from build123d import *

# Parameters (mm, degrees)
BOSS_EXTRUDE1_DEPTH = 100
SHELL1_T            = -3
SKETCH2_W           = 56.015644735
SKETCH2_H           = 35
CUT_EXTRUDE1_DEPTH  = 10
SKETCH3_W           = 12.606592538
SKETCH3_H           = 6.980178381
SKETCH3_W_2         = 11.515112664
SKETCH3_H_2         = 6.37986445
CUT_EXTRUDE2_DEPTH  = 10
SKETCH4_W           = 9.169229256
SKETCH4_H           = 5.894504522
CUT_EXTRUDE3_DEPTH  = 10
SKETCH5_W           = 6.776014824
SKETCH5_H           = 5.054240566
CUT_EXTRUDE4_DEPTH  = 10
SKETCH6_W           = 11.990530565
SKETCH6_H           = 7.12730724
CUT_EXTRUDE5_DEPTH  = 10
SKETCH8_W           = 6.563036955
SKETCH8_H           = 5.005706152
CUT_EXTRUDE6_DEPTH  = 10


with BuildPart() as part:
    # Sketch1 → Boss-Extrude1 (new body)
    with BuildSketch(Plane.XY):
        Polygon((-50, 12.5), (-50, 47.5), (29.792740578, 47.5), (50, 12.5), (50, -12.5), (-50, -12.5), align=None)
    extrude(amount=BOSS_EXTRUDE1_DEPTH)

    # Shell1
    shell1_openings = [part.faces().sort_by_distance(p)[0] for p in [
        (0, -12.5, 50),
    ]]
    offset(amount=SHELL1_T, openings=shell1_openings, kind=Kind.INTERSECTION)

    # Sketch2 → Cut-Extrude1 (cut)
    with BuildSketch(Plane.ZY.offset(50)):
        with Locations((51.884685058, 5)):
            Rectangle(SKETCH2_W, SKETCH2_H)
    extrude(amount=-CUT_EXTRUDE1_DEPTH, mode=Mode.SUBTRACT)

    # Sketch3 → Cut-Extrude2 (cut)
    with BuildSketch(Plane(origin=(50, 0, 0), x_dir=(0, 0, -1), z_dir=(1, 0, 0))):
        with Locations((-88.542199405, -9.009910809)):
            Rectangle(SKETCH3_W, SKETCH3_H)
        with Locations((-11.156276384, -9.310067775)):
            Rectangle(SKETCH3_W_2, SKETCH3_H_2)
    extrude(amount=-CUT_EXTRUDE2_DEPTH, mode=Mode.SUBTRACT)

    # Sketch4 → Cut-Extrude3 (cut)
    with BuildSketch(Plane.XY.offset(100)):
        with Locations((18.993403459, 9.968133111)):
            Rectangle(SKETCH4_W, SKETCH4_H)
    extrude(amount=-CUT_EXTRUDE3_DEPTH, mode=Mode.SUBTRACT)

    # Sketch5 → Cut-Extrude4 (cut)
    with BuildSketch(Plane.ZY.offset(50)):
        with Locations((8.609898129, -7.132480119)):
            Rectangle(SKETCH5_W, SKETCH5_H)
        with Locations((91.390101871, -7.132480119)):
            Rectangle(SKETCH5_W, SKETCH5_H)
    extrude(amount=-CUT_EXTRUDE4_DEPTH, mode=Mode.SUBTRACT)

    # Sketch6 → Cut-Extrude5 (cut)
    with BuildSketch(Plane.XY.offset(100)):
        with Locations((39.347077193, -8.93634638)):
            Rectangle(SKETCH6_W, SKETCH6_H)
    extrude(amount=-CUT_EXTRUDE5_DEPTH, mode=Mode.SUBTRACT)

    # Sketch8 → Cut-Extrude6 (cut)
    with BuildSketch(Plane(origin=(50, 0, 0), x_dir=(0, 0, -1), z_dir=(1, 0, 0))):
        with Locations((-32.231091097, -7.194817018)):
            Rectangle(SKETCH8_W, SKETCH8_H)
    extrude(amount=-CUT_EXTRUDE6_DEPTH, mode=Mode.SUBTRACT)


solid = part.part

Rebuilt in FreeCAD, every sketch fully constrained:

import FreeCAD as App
import Part
import Sketcher
from FreeCAD import Vector
Q = App.Units.Quantity


def faces_at(feature, points):
    """Names of the faces that lie closest to the given points."""
    faces = feature.Shape.Faces
    near = lambda p: min(range(len(faces)), key=lambda i: faces[i].distToShape(Part.Vertex(*p))[0])
    return sorted({f"Face{near(p) + 1}" for p in points})

doc = App.newDocument("Part")
params = doc.addObject("Spreadsheet::Sheet", "Params")
for row, (alias, value) in enumerate([
    ("sketch1_width", "100 mm"),
    ("sketch1_height", "60 mm"),
    ("sketch1_height2", "25 mm"),
    ("pad1_length", "100 mm"),
    ("thickness_wall", "3 mm"),
    ("sketch2_width", "35 mm"),
    ("pocket1_length", "10 mm"),
    ("pocket2_length", "10 mm"),
    ("pocket3_length", "10 mm"),
    ("pocket4_length", "10 mm"),
    ("pocket5_length", "10 mm"),
    ("pocket6_length", "10 mm"),
], start=1):
    params.set(f"A{row}", alias)
    params.set(f"B{row}", "=" + value)
    params.setAlias(f"B{row}", alias)

body = doc.addObject("PartDesign::Body", "Body")

# Sketch on XY plane
sketch1 = body.newObject("Sketcher::SketchObject", "Sketch")
sketch1.AttachmentSupport = (doc.getObject("XY_Plane"), [""])
sketch1.MapMode = "FlatFace"
sketch1.addGeometry([
    Part.LineSegment(Vector(-50, 47.5, 0), Vector(-50, -12.5, 0)),  # 0
    Part.LineSegment(Vector(-50, -12.5, 0), Vector(50, -12.5, 0)),  # 1
    Part.LineSegment(Vector(50, -12.5, 0), Vector(50, 12.5, 0)),  # 2
    Part.LineSegment(Vector(50, 12.5, 0), Vector(29.792741, 47.5, 0)),  # 3
    Part.LineSegment(Vector(29.792741, 47.5, 0), Vector(-50, 47.5, 0)),  # 4
], False)
sketch1.addConstraint([
    Sketcher.Constraint("Coincident", 0, 2, 1, 1),
    Sketcher.Constraint("Coincident", 1, 2, 2, 1),
    Sketcher.Constraint("Coincident", 2, 2, 3, 1),
    Sketcher.Constraint("Coincident", 3, 2, 4, 1),
    Sketcher.Constraint("Coincident", 4, 2, 0, 1),
    Sketcher.Constraint("Vertical", 0),
    Sketcher.Constraint("Horizontal", 1),
    Sketcher.Constraint("Vertical", 2),
    Sketcher.Constraint("Horizontal", 4),
    Sketcher.Constraint("Symmetric", 0, 2, 2, 2, -1, 1),
    Sketcher.Constraint("DistanceX", 1, 1, 1, 2, 100.0),
    Sketcher.Constraint("DistanceY", 0, 2, 0, 1, 60.0),
    Sketcher.Constraint("DistanceY", 2, 1, 2, 2, 25.0),
    Sketcher.Constraint("Angle", 3, Q("120 deg")),
])
sketch1.setExpression("Constraints[10]", "Params.sketch1_width")
sketch1.setExpression("Constraints[11]", "Params.sketch1_height")
sketch1.setExpression("Constraints[12]", "Params.sketch1_height2")
pad1 = body.newObject("PartDesign::Pad", "Pad")
pad1.Profile = sketch1
pad1.setExpression("Length", "Params.pad1_length")
doc.recompute()

thickness = body.newObject("PartDesign::Thickness", "Thickness")
thickness.Base = (pad1, faces_at(pad1, [(0, -12.5, 50)]))
thickness.setExpression("Value", "Params.thickness_wall")
thickness.Reversed = True
thickness.Join = "Intersection"

# Sketch on YZ plane
sketch2 = body.newObject("Sketcher::SketchObject", "Sketch001")
sketch2.AttachmentSupport = (doc.getObject("YZ_Plane"), [""])
sketch2.MapMode = "FlatFace"
sketch2.AttachmentOffset = App.Placement(Vector(0, 0, -50), App.Rotation())
sketch2.addGeometry([
    Part.LineSegment(Vector(22.5, 23.876863, 0), Vector(-12.5, 23.876863, 0)),
    Part.LineSegment(Vector(-12.5, 23.876863, 0), Vector(-12.5, 79.892507, 0)),
    Part.LineSegment(Vector(-12.5, 79.892507, 0), Vector(22.5, 79.892507, 0)),
    Part.LineSegment(Vector(22.5, 79.892507, 0), Vector(22.5, 23.876863, 0)),
], False)
sketch2.addConstraint([
    Sketcher.Constraint("Coincident", 0, 2, 1, 1),
    Sketcher.Constraint("Coincident", 1, 2, 2, 1),
    Sketcher.Constraint("Coincident", 2, 2, 3, 1),
    Sketcher.Constraint("Coincident", 3, 2, 0, 1),
    Sketcher.Constraint("Horizontal", 0),
    Sketcher.Constraint("Vertical", 1),
    Sketcher.Constraint("Horizontal", 2),
    Sketcher.Constraint("Vertical", 3),
    Sketcher.Constraint("DistanceX", 0, 2, 0, 1, 35.0),
    Sketcher.Constraint("DistanceX", 0, 2, -1, 1, 12.5),
    Sketcher.Constraint("DistanceY", 1, 1, 1, 2, 56.015645),
    Sketcher.Constraint("DistanceY", -1, 1, 0, 2, 23.876863),
])
sketch2.setExpression("Constraints[8]", "Params.sketch2_width")
pocket1 = body.newObject("PartDesign::Pocket", "Pocket")
pocket1.Profile = sketch2
pocket1.setExpression("Length", "Params.pocket1_length")
pocket1.Reversed = True

# Sketch on YZ plane
sketch3 = body.newObject("Sketcher::SketchObject", "Sketch002")
sketch3.AttachmentSupport = (doc.getObject("YZ_Plane"), [""])
sketch3.MapMode = "FlatFace"
sketch3.AttachmentOffset = App.Placement(Vector(0, 0, 50), App.Rotation())
sketch3.addGeometry([
    Part.LineSegment(Vector(-5.519822, 94.845496, 0), Vector(-12.5, 94.845496, 0)),  # 0
    Part.LineSegment(Vector(-12.5, 94.845496, 0), Vector(-12.5, 82.238903, 0)),  # 1
    Part.LineSegment(Vector(-12.5, 82.238903, 0), Vector(-5.519822, 82.238903, 0)),  # 2
    Part.LineSegment(Vector(-5.519822, 82.238903, 0), Vector(-5.519822, 94.845496, 0)),  # 3
    Part.LineSegment(Vector(-6.120136, 16.913833, 0), Vector(-12.5, 16.913833, 0)),  # 4
    Part.LineSegment(Vector(-12.5, 16.913833, 0), Vector(-12.5, 5.39872, 0)),  # 5
    Part.LineSegment(Vector(-12.5, 5.39872, 0), Vector(-6.120136, 5.39872, 0)),  # 6
    Part.LineSegment(Vector(-6.120136, 5.39872, 0), Vector(-6.120136, 16.913833, 0)),  # 7
], False)
sketch3.addConstraint([
    Sketcher.Constraint("Coincident", 0, 2, 1, 1),
    Sketcher.Constraint("Coincident", 1, 2, 2, 1),
    Sketcher.Constraint("Coincident", 2, 2, 3, 1),
    Sketcher.Constraint("Coincident", 3, 2, 0, 1),
    Sketcher.Constraint("Coincident", 4, 2, 5, 1),
    Sketcher.Constraint("Coincident", 5, 2, 6, 1),
    Sketcher.Constraint("Coincident", 6, 2, 7, 1),
    Sketcher.Constraint("Coincident", 7, 2, 4, 1),
    Sketcher.Constraint("Horizontal", 0),
    Sketcher.Constraint("Vertical", 1),
    Sketcher.Constraint("Horizontal", 2),
    Sketcher.Constraint("Vertical", 3),
    Sketcher.Constraint("Horizontal", 4),
    Sketcher.Constraint("Vertical", 5),
    Sketcher.Constraint("Horizontal", 6),
    Sketcher.Constraint("Vertical", 7),
    Sketcher.Constraint("Vertical", 1, 2, 4, 2),
    Sketcher.Constraint("DistanceX", 0, 2, -1, 1, 12.5),
    Sketcher.Constraint("DistanceX", 0, 2, 0, 1, 6.980178),
    Sketcher.Constraint("DistanceX", 4, 2, 4, 1, 6.379864),
    Sketcher.Constraint("DistanceY", 1, 2, 1, 1, 12.606593),
    Sketcher.Constraint("DistanceY", 5, 2, 5, 1, 11.515113),
    Sketcher.Constraint("DistanceY", -1, 1, 5, 2, 5.39872),
    Sketcher.Constraint("DistanceY", 4, 2, 1, 2, 65.32507),
])
pocket2 = body.newObject("PartDesign::Pocket", "Pocket001")
pocket2.Profile = sketch3
pocket2.setExpression("Length", "Params.pocket2_length")

# Sketch on XY plane
sketch4 = body.newObject("Sketcher::SketchObject", "Sketch003")
sketch4.AttachmentSupport = (doc.getObject("XY_Plane"), [""])
sketch4.MapMode = "FlatFace"
sketch4.AttachmentOffset = App.Placement(Vector(0, 0, 100), App.Rotation())
sketch4.addGeometry([
    Part.LineSegment(Vector(14.408789, 12.915385, 0), Vector(14.408789, 7.020881, 0)),
    Part.LineSegment(Vector(14.408789, 7.020881, 0), Vector(23.578018, 7.020881, 0)),
    Part.LineSegment(Vector(23.578018, 7.020881, 0), Vector(23.578018, 12.915385, 0)),
    Part.LineSegment(Vector(23.578018, 12.915385, 0), Vector(14.408789, 12.915385, 0)),
], False)
sketch4.addConstraint([
    Sketcher.Constraint("Coincident", 0, 2, 1, 1),
    Sketcher.Constraint("Coincident", 1, 2, 2, 1),
    Sketcher.Constraint("Coincident", 2, 2, 3, 1),
    Sketcher.Constraint("Coincident", 3, 2, 0, 1),
    Sketcher.Constraint("Vertical", 0),
    Sketcher.Constraint("Horizontal", 1),
    Sketcher.Constraint("Vertical", 2),
    Sketcher.Constraint("Horizontal", 3),
    Sketcher.Constraint("DistanceX", 1, 1, 1, 2, 9.169229),
    Sketcher.Constraint("DistanceY", 0, 2, 0, 1, 5.894505),
    Sketcher.Constraint("DistanceX", -1, 1, 0, 2, 14.408789),
    Sketcher.Constraint("DistanceY", -1, 1, 0, 2, 7.020881),
])
pocket3 = body.newObject("PartDesign::Pocket", "Pocket002")
pocket3.Profile = sketch4
pocket3.setExpression("Length", "Params.pocket3_length")

# Sketch on YZ plane
sketch5 = body.newObject("Sketcher::SketchObject", "Sketch004")
sketch5.AttachmentSupport = (doc.getObject("YZ_Plane"), [""])
sketch5.MapMode = "FlatFace"
sketch5.AttachmentOffset = App.Placement(Vector(0, 0, -50), App.Rotation())
sketch5.addGeometry([
    Part.LineSegment(Vector(-4.60536, 5.221891, 0), Vector(-9.6596, 5.221891, 0)),  # 0
    Part.LineSegment(Vector(-9.6596, 5.221891, 0), Vector(-9.6596, 11.997906, 0)),  # 1
    Part.LineSegment(Vector(-9.6596, 11.997906, 0), Vector(-4.60536, 11.997906, 0)),  # 2
    Part.LineSegment(Vector(-4.60536, 11.997906, 0), Vector(-4.60536, 5.221891, 0)),  # 3
    Part.LineSegment(Vector(-4.60536, 88.002094, 0), Vector(-9.6596, 88.002094, 0)),  # 4
    Part.LineSegment(Vector(-9.6596, 88.002094, 0), Vector(-9.6596, 94.778109, 0)),  # 5
    Part.LineSegment(Vector(-9.6596, 94.778109, 0), Vector(-4.60536, 94.778109, 0)),  # 6
    Part.LineSegment(Vector(-4.60536, 94.778109, 0), Vector(-4.60536, 88.002094, 0)),  # 7
], False)
sketch5.addConstraint([
    Sketcher.Constraint("Coincident", 0, 2, 1, 1),
    Sketcher.Constraint("Coincident", 1, 2, 2, 1),
    Sketcher.Constraint("Coincident", 2, 2, 3, 1),
    Sketcher.Constraint("Coincident", 3, 2, 0, 1),
    Sketcher.Constraint("Coincident", 4, 2, 5, 1),
    Sketcher.Constraint("Coincident", 5, 2, 6, 1),
    Sketcher.Constraint("Coincident", 6, 2, 7, 1),
    Sketcher.Constraint("Coincident", 7, 2, 4, 1),
    Sketcher.Constraint("Horizontal", 0),
    Sketcher.Constraint("Vertical", 1),
    Sketcher.Constraint("Horizontal", 2),
    Sketcher.Constraint("Vertical", 3),
    Sketcher.Constraint("Horizontal", 4),
    Sketcher.Constraint("Vertical", 5),
    Sketcher.Constraint("Horizontal", 6),
    Sketcher.Constraint("Vertical", 7),
    Sketcher.Constraint("Vertical", 1, 2, 4, 2),
    Sketcher.Constraint("Vertical", 3, 2, 6, 2),
    Sketcher.Constraint("Equal", 3, 5),
    Sketcher.Constraint("DistanceX", 0, 2, 0, 1, 5.054241),
    Sketcher.Constraint("DistanceX", 0, 2, -1, 1, 9.6596),
    Sketcher.Constraint("DistanceY", 1, 1, 1, 2, 6.776015),
    Sketcher.Constraint("DistanceY", -1, 1, 0, 2, 5.221891),
    Sketcher.Constraint("DistanceY", -1, 1, 5, 2, 94.778109),
])
pocket4 = body.newObject("PartDesign::Pocket", "Pocket003")
pocket4.Profile = sketch5
pocket4.setExpression("Length", "Params.pocket4_length")
pocket4.Reversed = True

# Sketch on XY plane
sketch6 = body.newObject("Sketcher::SketchObject", "Sketch005")
sketch6.AttachmentSupport = (doc.getObject("XY_Plane"), [""])
sketch6.MapMode = "FlatFace"
sketch6.AttachmentOffset = App.Placement(Vector(0, 0, 100), App.Rotation())
sketch6.addGeometry([
    Part.LineSegment(Vector(33.351812, -5.372693, 0), Vector(33.351812, -12.5, 0)),
    Part.LineSegment(Vector(33.351812, -12.5, 0), Vector(45.342342, -12.5, 0)),
    Part.LineSegment(Vector(45.342342, -12.5, 0), Vector(45.342342, -5.372693, 0)),
    Part.LineSegment(Vector(45.342342, -5.372693, 0), Vector(33.351812, -5.372693, 0)),
], False)
sketch6.addConstraint([
    Sketcher.Constraint("Coincident", 0, 2, 1, 1),
    Sketcher.Constraint("Coincident", 1, 2, 2, 1),
    Sketcher.Constraint("Coincident", 2, 2, 3, 1),
    Sketcher.Constraint("Coincident", 3, 2, 0, 1),
    Sketcher.Constraint("Vertical", 0),
    Sketcher.Constraint("Horizontal", 1),
    Sketcher.Constraint("Vertical", 2),
    Sketcher.Constraint("Horizontal", 3),
    Sketcher.Constraint("DistanceY", 0, 2, -1, 1, 12.5),
    Sketcher.Constraint("DistanceX", 1, 1, 1, 2, 11.990531),
    Sketcher.Constraint("DistanceY", 0, 2, 0, 1, 7.127307),
    Sketcher.Constraint("DistanceX", -1, 1, 0, 2, 33.351812),
])
pocket5 = body.newObject("PartDesign::Pocket", "Pocket004")
pocket5.Profile = sketch6
pocket5.setExpression("Length", "Params.pocket5_length")

# Sketch on YZ plane
sketch7 = body.newObject("Sketcher::SketchObject", "Sketch006")
sketch7.AttachmentSupport = (doc.getObject("YZ_Plane"), [""])
sketch7.MapMode = "FlatFace"
sketch7.AttachmentOffset = App.Placement(Vector(0, 0, 50), App.Rotation())
sketch7.addGeometry([
    Part.LineSegment(Vector(-4.691964, 35.51261, 0), Vector(-9.69767, 35.51261, 0)),
    Part.LineSegment(Vector(-9.69767, 35.51261, 0), Vector(-9.69767, 28.949573, 0)),
    Part.LineSegment(Vector(-9.69767, 28.949573, 0), Vector(-4.691964, 28.949573, 0)),
    Part.LineSegment(Vector(-4.691964, 28.949573, 0), Vector(-4.691964, 35.51261, 0)),
], False)
sketch7.addConstraint([
    Sketcher.Constraint("Coincident", 0, 2, 1, 1),
    Sketcher.Constraint("Coincident", 1, 2, 2, 1),
    Sketcher.Constraint("Coincident", 2, 2, 3, 1),
    Sketcher.Constraint("Coincident", 3, 2, 0, 1),
    Sketcher.Constraint("Horizontal", 0),
    Sketcher.Constraint("Vertical", 1),
    Sketcher.Constraint("Horizontal", 2),
    Sketcher.Constraint("Vertical", 3),
    Sketcher.Constraint("DistanceX", 0, 2, 0, 1, 5.005706),
    Sketcher.Constraint("DistanceY", 1, 2, 1, 1, 6.563037),
    Sketcher.Constraint("DistanceX", 0, 2, -1, 1, 9.69767),
    Sketcher.Constraint("DistanceY", -1, 1, 0, 2, 35.51261),
])
pocket6 = body.newObject("PartDesign::Pocket", "Pocket005")
pocket6.Profile = sketch7
pocket6.setExpression("Length", "Params.pocket6_length")

doc.recompute()
